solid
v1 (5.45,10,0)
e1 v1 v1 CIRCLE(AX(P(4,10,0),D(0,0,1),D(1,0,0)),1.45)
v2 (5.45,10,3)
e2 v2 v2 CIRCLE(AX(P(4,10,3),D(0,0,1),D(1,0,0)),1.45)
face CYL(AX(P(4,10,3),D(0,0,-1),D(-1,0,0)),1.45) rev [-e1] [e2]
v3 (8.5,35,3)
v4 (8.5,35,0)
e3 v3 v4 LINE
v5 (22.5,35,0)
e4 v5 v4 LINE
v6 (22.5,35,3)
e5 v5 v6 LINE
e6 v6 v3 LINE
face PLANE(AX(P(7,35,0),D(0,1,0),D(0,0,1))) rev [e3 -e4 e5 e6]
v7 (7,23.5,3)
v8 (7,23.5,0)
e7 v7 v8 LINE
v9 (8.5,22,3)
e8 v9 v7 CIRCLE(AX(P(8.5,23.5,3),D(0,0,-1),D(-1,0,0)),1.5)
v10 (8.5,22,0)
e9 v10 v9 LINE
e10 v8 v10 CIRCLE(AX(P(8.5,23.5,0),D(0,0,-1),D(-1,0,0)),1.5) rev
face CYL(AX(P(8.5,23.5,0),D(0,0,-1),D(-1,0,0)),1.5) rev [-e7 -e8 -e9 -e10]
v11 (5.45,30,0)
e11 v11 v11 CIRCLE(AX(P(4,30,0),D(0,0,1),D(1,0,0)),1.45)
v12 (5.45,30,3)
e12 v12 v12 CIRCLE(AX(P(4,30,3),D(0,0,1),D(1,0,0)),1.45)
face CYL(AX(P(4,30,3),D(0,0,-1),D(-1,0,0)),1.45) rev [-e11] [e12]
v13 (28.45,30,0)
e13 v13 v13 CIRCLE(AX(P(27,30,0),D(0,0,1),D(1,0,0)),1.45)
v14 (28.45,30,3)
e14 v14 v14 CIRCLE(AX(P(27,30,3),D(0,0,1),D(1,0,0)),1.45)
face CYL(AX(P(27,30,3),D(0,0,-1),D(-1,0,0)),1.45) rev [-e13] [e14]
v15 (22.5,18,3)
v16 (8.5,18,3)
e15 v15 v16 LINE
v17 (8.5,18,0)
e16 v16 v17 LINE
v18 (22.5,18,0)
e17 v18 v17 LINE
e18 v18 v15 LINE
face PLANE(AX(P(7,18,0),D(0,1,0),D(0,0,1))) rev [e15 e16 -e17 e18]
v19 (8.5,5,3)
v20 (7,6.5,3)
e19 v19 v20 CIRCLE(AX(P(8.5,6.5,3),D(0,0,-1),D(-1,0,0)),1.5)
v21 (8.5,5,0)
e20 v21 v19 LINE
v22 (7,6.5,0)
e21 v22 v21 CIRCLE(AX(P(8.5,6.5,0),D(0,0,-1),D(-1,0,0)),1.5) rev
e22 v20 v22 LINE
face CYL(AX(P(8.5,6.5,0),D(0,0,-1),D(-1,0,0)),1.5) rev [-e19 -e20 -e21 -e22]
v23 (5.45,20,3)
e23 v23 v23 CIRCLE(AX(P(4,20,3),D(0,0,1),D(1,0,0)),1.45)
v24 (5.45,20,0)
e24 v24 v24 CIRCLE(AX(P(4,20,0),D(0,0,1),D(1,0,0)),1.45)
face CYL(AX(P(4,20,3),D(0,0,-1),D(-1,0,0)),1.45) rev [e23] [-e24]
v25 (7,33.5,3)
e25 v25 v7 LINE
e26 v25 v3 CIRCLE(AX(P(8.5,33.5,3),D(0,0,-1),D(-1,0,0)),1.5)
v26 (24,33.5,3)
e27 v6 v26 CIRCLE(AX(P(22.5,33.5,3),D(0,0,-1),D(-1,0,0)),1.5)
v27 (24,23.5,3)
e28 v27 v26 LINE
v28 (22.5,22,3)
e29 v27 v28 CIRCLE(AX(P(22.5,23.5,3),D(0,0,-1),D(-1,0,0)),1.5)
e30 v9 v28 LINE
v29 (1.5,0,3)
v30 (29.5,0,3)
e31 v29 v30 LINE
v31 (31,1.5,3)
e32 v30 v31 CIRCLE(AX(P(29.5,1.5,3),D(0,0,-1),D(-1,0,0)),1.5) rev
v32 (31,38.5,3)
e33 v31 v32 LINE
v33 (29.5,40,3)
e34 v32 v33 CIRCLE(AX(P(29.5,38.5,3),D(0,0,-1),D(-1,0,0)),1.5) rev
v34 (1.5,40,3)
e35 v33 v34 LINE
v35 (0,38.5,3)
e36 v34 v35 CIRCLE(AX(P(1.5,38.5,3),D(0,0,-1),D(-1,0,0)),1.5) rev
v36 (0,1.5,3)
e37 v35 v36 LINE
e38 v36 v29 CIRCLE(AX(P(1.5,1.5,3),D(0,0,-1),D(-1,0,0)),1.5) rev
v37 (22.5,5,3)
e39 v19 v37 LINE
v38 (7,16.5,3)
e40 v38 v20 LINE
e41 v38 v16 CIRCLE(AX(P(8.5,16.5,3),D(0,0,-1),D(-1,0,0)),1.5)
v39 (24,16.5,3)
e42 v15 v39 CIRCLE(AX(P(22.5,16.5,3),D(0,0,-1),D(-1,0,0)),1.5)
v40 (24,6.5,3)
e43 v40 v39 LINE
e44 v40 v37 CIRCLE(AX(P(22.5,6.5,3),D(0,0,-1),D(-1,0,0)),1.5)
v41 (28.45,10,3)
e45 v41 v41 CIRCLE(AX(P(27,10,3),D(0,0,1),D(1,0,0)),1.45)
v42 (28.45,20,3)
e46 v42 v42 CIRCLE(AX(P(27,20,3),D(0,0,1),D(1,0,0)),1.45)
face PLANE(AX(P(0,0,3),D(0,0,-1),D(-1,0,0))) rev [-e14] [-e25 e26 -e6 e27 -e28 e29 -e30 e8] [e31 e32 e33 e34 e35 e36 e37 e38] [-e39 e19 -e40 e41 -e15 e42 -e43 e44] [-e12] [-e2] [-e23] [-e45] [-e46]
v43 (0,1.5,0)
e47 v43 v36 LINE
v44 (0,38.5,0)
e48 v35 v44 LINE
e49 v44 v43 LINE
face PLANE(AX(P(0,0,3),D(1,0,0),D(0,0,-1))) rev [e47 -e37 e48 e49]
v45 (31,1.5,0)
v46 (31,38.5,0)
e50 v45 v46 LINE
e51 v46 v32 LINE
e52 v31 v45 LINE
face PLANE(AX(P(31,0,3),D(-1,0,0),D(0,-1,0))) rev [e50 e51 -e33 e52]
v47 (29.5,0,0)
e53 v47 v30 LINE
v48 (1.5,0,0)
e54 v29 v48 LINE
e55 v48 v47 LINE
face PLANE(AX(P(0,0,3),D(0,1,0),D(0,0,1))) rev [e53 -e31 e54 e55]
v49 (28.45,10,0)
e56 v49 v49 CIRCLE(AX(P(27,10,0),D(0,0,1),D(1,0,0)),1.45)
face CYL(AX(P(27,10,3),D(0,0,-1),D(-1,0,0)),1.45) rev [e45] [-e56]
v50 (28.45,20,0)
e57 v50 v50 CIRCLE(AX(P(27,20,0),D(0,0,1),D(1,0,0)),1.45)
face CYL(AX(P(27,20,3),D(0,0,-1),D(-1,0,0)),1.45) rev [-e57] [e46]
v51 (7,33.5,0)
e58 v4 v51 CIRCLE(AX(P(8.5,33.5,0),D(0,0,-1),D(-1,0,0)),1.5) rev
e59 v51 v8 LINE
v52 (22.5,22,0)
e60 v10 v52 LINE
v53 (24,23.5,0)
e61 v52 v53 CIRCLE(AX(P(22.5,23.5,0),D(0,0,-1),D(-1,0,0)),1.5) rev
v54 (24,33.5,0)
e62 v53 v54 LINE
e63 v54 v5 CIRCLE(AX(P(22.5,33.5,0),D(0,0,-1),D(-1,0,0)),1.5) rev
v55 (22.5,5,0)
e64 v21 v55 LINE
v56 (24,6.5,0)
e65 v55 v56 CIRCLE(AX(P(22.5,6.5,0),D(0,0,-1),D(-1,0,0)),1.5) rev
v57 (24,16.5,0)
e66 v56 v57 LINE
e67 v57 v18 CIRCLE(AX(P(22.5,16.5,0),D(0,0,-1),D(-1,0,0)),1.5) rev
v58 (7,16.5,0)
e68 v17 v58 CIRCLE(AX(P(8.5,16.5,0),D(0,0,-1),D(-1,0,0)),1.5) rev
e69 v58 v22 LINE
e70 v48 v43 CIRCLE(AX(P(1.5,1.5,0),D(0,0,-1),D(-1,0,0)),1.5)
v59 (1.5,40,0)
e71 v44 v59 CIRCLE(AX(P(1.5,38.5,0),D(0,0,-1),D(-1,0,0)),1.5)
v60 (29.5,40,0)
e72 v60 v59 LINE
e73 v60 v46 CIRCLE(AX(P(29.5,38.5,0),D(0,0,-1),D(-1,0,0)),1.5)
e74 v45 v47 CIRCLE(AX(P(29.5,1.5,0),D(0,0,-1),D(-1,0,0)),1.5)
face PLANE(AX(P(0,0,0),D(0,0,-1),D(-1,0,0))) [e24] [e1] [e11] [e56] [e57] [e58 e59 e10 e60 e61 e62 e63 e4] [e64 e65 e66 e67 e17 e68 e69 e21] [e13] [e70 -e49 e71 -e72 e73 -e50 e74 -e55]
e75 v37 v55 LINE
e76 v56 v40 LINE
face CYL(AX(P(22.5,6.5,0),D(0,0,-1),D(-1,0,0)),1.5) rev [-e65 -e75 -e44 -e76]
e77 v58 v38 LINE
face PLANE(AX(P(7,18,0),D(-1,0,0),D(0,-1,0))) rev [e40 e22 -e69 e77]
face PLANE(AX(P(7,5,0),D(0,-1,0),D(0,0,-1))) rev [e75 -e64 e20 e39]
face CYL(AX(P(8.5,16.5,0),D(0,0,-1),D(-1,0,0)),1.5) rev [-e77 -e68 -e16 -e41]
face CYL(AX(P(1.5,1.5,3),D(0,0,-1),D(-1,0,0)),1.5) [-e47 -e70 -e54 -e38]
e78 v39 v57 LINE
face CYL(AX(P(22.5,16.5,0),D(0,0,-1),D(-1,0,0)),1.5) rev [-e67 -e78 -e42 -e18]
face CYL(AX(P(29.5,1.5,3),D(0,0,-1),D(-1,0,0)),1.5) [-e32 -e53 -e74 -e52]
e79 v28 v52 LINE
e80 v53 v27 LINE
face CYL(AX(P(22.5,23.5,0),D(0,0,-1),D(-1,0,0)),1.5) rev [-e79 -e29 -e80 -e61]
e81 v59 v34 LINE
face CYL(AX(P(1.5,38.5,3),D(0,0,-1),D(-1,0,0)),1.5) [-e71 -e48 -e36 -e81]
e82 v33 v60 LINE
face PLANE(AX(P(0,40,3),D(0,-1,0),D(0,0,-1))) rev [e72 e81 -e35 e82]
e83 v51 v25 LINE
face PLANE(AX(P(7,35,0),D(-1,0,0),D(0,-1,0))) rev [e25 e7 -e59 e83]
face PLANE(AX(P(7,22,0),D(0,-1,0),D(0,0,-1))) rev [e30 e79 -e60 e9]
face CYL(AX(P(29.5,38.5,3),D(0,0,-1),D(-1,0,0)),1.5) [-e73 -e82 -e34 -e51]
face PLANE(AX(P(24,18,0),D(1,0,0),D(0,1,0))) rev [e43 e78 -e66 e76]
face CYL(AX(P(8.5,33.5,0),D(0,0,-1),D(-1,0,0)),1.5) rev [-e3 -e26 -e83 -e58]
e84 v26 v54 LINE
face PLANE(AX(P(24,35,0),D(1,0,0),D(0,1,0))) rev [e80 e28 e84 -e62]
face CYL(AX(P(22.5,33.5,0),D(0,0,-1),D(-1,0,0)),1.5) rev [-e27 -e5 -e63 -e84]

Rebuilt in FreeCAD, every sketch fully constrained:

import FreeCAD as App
import Part
import Sketcher


def edges_at(feature, points):
    """Names of the edges that pass closest to the given points."""
    edges = feature.Shape.Edges
    near = lambda p: min(range(len(edges)), key=lambda i: edges[i].distToShape(Part.Vertex(*p))[0])
    return sorted({f"Edge{near(p) + 1}" for p in points})


def add_polygon(sketch, points):
    """Adds a closed chain of lines whose ends are joined by coincident constraints."""
    first, n = sketch.GeometryCount, len(points)
    for a, b in zip(points, points[1:] + points[:1]):
        sketch.addGeometry(Part.LineSegment(App.Vector(*a, 0), App.Vector(*b, 0)), False)
    for i in range(n):
        sketch.addConstraint(Sketcher.Constraint("Coincident", first + i, 2, first + (i + 1) % n, 1))

doc = App.newDocument("Part")
body = doc.addObject("PartDesign::Body", "Body")

# Sketch on XY plane
sketch1 = body.newObject("Sketcher::SketchObject", "Sketch")
sketch1.AttachmentSupport = (doc.getObject("XY_Plane"), [""])
sketch1.MapMode = "FlatFace"
add_polygon(sketch1, [(0, 40), (0, 0), (31, 0), (31, 40)])  # lines 0-3
sketch1.addGeometry(Part.Circle(App.Vector(4, 10, 0), App.Vector(0, 0, 1), 1.4), False)  # 4
sketch1.addGeometry(Part.Circle(App.Vector(27, 10, 0), App.Vector(0, 0, 1), 1.4), False)  # 5
sketch1.addGeometry(Part.Circle(App.Vector(4, 20, 0), App.Vector(0, 0, 1), 1.4), False)  # 6
sketch1.addGeometry(Part.Circle(App.Vector(4, 30, 0), App.Vector(0, 0, 1), 1.4), False)  # 7
sketch1.addGeometry(Part.Circle(App.Vector(27, 20, 0), App.Vector(0, 0, 1), 1.4), False)  # 8
sketch1.addGeometry(Part.Circle(App.Vector(27, 30, 0), App.Vector(0, 0, 1), 1.4), False)  # 9
sketch1.addConstraint(Sketcher.Constraint("Vertical", 0))
sketch1.addConstraint(Sketcher.Constraint("Horizontal", 1))
sketch1.addConstraint(Sketcher.Constraint("Vertical", 2))
sketch1.addConstraint(Sketcher.Constraint("Horizontal", 3))
sketch1.addConstraint(Sketcher.Constraint("Coincident", 0, 2, -1, 1))
sketch1.addConstraint(Sketcher.Constraint("Equal", 4, 5))
sketch1.addConstraint(Sketcher.Constraint("Equal", 5, 6))
sketch1.addConstraint(Sketcher.Constraint("Equal", 6, 7))
sketch1.addConstraint(Sketcher.Constraint("Equal", 7, 8))
sketch1.addConstraint(Sketcher.Constraint("Equal", 8, 9))
sketch1.addConstraint(Sketcher.Constraint("Horizontal", 4, 3, 5, 3))
sketch1.addConstraint(Sketcher.Constraint("Horizontal", 6, 3, 8, 3))
sketch1.addConstraint(Sketcher.Constraint("Horizontal", 7, 3, 9, 3))
sketch1.addConstraint(Sketcher.Constraint("Vertical", 4, 3, 6, 3))
sketch1.addConstraint(Sketcher.Constraint("Vertical", 6, 3, 7, 3))
sketch1.addConstraint(Sketcher.Constraint("Vertical", 5, 3, 8, 3))
sketch1.addConstraint(Sketcher.Constraint("Vertical", 8, 3, 9, 3))
sketch1.addConstraint(Sketcher.Constraint("Diameter", 4, 2.9))
sketch1.addConstraint(Sketcher.Constraint("DistanceX", 1, 1, 1, 2, 31.0))
sketch1.addConstraint(Sketcher.Constraint("DistanceY", 0, 2, 0, 1, 40.0))
sketch1.addConstraint(Sketcher.Constraint("DistanceX", -1, 1, 4, 3, 4.0))
sketch1.addConstraint(Sketcher.Constraint("DistanceY", -1, 1, 4, 3, 10.0))
sketch1.addConstraint(Sketcher.Constraint("DistanceX", -1, 1, 5, 3, 27.0))
sketch1.addConstraint(Sketcher.Constraint("DistanceY", -1, 1, 6, 3, 20.0))
sketch1.addConstraint(Sketcher.Constraint("DistanceY", -1, 1, 7, 3, 30.0))
pad1 = body.newObject("PartDesign::Pad", "Pad")
pad1.Profile = sketch1
pad1.Length = 3

# Sketch on XY plane
sketch2 = body.newObject("Sketcher::SketchObject", "Sketch001")
sketch2.AttachmentSupport = (doc.getObject("XY_Plane"), [""])
sketch2.MapMode = "FlatFace"
sketch2.AttachmentOffset = App.Placement(App.Vector(0, 0, 3), App.Rotation())
add_polygon(sketch2, [(7, 35), (7, 22), (24, 22), (24, 35)])  # lines 0-3
add_polygon(sketch2, [(7, 18), (7, 5), (24, 5), (24, 18)])  # lines 4-7
sketch2.addConstraint(Sketcher.Constraint("Vertical", 0))
sketch2.addConstraint(Sketcher.Constraint("Horizontal", 1))
sketch2.addConstraint(Sketcher.Constraint("Vertical", 2))
sketch2.addConstraint(Sketcher.Constraint("Horizontal", 3))
sketch2.addConstraint(Sketcher.Constraint("Vertical", 4))
sketch2.addConstraint(Sketcher.Constraint("Horizontal", 5))
sketch2.addConstraint(Sketcher.Constraint("Vertical", 6))
sketch2.addConstraint(Sketcher.Constraint("Horizontal", 7))
sketch2.addConstraint(Sketcher.Constraint("Vertical", 3, 2, 4, 2))
sketch2.addConstraint(Sketcher.Constraint("Vertical", 2, 2, 5, 2))
sketch2.addConstraint(Sketcher.Constraint("Equal", 2, 4))
sketch2.addConstraint(Sketcher.Constraint("DistanceX", 1, 1, 1, 2, 17.0))
sketch2.addConstraint(Sketcher.Constraint("DistanceY", 0, 2, 0, 1, 13.0))
sketch2.addConstraint(Sketcher.Constraint("DistanceX", -1, 1, 0, 2, 7.0))
sketch2.addConstraint(Sketcher.Constraint("DistanceY", -1, 1, 0, 2, 22.0))
sketch2.addConstraint(Sketcher.Constraint("DistanceY", -1, 1, 4, 2, 5.0))
pocket1 = body.newObject("PartDesign::Pocket", "Pocket")
pocket1.Profile = sketch2
pocket1.Length = 3
doc.recompute()

fillet = body.newObject("PartDesign::Fillet", "Fillet")
fillet.Base = (pocket1, edges_at(pocket1, [
    (7, 22, 1.5),
    (7, 35, 1.5),
    (24, 35, 1.5),
    (24, 22, 1.5),
    (7, 5, 1.5),
    (7, 18, 1.5),
    (24, 18, 1.5),
    (24, 5, 1.5),
    (0, 40, 1.5),
    (31, 40, 1.5),
    (31, 0, 1.5),
    (0, 0, 1.5),
]))
fillet.Radius = 1.5

doc.recompute()
